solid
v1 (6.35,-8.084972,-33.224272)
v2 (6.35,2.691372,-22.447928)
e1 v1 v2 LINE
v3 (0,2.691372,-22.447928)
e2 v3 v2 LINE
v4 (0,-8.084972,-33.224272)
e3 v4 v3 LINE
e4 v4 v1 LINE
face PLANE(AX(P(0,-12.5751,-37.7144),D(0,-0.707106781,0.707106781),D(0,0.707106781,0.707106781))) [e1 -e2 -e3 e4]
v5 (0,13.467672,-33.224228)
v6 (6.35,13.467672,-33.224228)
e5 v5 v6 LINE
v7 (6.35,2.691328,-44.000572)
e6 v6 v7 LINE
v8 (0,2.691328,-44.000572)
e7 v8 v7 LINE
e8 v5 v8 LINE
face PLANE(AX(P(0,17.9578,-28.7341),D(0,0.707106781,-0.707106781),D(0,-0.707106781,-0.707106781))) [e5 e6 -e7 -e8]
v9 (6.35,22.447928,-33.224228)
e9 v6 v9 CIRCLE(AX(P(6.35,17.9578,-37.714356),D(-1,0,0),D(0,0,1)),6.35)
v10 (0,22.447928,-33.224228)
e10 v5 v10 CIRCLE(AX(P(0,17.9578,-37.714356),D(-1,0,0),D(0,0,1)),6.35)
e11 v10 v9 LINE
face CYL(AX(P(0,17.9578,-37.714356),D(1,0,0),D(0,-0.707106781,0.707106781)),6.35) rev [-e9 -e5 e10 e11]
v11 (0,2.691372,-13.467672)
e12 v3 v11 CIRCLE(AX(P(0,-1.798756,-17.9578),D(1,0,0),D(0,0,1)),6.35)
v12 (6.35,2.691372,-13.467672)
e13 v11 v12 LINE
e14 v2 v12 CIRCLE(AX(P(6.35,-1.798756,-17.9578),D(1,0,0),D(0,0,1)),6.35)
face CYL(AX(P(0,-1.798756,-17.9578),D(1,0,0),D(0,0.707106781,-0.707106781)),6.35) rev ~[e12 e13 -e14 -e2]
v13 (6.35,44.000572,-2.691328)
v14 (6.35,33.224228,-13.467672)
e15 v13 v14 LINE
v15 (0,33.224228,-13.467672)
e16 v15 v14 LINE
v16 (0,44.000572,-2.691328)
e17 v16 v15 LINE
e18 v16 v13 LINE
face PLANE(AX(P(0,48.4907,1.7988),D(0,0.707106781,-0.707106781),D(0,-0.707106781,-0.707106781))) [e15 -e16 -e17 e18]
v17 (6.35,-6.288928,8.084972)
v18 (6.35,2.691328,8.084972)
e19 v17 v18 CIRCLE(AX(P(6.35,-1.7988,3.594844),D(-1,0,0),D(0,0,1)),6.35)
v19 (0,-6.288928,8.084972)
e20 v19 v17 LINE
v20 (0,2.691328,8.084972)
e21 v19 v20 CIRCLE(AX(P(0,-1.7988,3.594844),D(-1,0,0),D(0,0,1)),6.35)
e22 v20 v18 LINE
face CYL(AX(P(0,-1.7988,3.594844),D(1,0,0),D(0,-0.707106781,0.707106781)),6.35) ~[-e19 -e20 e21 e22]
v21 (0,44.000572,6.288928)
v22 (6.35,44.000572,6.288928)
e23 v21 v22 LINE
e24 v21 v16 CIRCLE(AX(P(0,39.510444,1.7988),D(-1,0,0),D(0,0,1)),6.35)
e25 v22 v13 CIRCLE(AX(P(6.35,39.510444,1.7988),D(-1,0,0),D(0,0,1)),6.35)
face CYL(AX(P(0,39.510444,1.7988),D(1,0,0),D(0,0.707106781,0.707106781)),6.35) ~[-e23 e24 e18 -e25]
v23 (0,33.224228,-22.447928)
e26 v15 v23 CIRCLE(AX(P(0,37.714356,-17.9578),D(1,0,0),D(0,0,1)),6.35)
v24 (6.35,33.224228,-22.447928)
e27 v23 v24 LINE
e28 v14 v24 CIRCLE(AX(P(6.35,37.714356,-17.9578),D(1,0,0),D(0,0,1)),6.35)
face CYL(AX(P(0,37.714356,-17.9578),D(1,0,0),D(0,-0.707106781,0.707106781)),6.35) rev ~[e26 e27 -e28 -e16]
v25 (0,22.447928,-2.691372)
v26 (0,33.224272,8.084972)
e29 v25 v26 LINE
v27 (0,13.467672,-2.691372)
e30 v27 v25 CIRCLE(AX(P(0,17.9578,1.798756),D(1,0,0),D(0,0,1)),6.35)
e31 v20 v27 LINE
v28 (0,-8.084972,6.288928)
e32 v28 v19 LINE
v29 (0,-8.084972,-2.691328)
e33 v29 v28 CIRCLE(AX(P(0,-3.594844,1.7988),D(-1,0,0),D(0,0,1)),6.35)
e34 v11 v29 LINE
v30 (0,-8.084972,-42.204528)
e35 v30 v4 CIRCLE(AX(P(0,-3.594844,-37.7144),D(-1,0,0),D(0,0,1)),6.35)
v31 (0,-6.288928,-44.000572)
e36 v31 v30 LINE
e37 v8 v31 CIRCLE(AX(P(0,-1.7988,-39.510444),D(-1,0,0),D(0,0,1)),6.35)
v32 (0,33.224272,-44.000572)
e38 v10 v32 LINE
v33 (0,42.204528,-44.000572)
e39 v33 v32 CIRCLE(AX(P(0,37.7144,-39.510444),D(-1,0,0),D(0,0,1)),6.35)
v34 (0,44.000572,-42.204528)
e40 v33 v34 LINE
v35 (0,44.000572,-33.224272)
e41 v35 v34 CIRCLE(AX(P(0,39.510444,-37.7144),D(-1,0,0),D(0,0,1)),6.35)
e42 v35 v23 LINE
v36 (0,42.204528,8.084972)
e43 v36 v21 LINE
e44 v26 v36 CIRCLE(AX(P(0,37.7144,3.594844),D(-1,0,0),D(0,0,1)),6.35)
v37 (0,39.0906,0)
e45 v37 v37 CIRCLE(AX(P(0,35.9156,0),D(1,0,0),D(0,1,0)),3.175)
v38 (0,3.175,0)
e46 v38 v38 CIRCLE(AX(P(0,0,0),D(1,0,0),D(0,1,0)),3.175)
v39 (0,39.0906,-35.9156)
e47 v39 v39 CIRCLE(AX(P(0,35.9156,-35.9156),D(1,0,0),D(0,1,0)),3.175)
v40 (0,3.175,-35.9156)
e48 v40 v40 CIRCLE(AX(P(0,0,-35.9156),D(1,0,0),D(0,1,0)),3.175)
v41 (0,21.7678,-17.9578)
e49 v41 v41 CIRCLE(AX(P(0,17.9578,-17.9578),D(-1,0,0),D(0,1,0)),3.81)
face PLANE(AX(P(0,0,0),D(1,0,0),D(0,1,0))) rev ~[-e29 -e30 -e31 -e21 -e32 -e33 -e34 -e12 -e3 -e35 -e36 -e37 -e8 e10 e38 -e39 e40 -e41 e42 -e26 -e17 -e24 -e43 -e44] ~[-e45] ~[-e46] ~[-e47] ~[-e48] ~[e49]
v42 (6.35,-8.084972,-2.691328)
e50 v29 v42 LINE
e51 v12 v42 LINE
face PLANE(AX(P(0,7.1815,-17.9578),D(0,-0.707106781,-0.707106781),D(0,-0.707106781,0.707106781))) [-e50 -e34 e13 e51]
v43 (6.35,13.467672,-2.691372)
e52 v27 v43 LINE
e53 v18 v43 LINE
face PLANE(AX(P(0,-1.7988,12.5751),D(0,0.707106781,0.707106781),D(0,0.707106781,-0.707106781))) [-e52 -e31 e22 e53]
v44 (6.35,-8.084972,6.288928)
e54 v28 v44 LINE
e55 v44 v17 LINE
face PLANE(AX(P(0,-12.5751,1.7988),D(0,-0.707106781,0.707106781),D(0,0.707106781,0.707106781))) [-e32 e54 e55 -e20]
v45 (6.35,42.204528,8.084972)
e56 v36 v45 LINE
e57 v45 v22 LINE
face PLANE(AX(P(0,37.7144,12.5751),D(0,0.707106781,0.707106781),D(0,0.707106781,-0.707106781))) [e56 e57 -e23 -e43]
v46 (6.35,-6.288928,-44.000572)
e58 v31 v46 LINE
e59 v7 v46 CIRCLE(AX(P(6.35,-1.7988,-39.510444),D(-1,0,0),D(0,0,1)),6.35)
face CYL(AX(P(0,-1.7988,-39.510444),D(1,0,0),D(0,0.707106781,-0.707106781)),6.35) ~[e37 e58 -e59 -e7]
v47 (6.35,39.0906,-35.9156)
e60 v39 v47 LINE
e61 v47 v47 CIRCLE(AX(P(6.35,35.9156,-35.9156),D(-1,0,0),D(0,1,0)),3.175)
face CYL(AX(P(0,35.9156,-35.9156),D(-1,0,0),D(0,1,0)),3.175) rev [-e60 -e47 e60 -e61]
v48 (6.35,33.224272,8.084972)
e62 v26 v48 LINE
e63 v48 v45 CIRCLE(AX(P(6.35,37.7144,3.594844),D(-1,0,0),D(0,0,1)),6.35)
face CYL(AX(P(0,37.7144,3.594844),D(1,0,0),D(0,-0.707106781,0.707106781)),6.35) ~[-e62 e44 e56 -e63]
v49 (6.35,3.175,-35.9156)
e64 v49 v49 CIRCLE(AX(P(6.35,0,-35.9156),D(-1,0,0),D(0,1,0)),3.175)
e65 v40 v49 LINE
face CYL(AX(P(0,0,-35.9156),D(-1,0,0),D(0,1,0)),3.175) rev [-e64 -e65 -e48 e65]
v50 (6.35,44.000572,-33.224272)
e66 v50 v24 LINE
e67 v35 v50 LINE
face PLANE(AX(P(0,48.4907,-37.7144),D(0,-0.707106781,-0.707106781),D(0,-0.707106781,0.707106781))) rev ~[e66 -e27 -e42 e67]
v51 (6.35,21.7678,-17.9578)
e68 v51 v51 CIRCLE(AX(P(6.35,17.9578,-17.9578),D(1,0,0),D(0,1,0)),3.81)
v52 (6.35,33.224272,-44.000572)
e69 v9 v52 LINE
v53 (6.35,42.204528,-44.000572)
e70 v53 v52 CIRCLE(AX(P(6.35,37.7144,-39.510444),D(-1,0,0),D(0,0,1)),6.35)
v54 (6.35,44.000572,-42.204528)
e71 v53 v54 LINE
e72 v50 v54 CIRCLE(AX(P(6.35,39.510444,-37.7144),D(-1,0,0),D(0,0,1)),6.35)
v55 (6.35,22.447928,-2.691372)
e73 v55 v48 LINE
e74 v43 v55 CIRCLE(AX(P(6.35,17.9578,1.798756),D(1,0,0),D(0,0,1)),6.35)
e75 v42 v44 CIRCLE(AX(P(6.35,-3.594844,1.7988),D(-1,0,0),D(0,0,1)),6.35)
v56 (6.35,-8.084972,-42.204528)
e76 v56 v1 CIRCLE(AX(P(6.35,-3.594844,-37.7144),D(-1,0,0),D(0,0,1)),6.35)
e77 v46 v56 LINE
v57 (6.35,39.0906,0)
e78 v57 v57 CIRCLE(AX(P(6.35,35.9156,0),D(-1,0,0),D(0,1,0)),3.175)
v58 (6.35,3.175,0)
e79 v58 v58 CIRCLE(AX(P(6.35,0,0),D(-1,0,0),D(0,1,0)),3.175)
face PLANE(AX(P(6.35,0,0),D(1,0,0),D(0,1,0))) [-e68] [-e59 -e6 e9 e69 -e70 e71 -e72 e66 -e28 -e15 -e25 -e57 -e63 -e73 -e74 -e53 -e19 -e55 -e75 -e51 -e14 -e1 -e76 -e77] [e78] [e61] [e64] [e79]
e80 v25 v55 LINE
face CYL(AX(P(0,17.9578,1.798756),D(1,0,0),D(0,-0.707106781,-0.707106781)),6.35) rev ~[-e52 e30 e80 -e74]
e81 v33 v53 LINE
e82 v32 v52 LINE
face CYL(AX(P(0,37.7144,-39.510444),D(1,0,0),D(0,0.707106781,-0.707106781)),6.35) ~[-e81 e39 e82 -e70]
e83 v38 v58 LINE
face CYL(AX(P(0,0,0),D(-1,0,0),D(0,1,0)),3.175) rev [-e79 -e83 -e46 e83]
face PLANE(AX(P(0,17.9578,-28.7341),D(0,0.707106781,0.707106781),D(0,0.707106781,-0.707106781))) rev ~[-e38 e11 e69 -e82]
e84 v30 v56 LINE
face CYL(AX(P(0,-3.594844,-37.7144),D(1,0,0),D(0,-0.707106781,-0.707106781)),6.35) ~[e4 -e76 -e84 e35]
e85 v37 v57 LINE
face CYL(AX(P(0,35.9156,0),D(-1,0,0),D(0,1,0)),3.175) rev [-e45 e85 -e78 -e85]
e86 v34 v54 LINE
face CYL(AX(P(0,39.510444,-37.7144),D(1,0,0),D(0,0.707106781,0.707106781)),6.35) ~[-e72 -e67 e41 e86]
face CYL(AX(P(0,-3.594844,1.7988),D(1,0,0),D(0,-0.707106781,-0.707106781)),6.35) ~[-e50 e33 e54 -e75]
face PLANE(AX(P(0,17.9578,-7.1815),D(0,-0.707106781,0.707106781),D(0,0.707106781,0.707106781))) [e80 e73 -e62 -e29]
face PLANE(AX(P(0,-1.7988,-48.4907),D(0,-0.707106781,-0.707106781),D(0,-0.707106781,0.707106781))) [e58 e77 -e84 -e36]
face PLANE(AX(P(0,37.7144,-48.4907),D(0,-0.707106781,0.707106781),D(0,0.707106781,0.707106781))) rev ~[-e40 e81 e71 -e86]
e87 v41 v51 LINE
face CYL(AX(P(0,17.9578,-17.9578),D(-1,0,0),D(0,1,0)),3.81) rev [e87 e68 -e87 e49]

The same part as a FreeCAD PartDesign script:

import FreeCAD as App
import Part
import Sketcher

V = App.Vector
Q = App.Units.Quantity


def edges_at(feature, points):
    """Names of the edges that pass closest to the given points."""
    edges = feature.Shape.Edges
    near = lambda p: min(range(len(edges)), key=lambda i: edges[i].distToShape(Part.Vertex(*p))[0])
    return sorted({f"Edge{near(p) + 1}" for p in points})


def add_polygon(sketch, points):
    """Adds a closed chain of lines whose ends are joined by coincident constraints."""
    first, n = sketch.GeometryCount, len(points)
    for a, b in zip(points, points[1:] + points[:1]):
        sketch.addGeometry(Part.LineSegment(App.Vector(*a, 0), App.Vector(*b, 0)), False)
    for i in range(n):
        sketch.addConstraint(Sketcher.Constraint("Coincident", first + i, 2, first + (i + 1) % n, 1))

doc = App.newDocument("Part")
body = doc.addObject("PartDesign::Body", "Body")

# Sketch on YZ plane
sketch1 = body.newObject("Sketcher::SketchObject", "Sketch")
sketch1.AttachmentSupport = (doc.getObject("YZ_Plane"), [""])
sketch1.MapMode = "FlatFace"
add_polygon(sketch1, [(-1.8, -48.5), (18, -28.7), (37.7, -48.5), (48.5, -37.7), (28.7, -18), (48.5, 1.8), (37.7, 12.6), (18, -7.2), (-1.8, 12.6), (-12.6, 1.8), (7.2, -18), (-12.6, -37.7)])  # lines 0-11
sketch1.addGeometry(Part.Circle(V(18, -18, 0), V(0, 0, 1), 3.8), False)  # 12
sketch1.addGeometry(Part.Circle(V(0, -35.9, 0), V(0, 0, 1), 3.2), False)  # 13
sketch1.addGeometry(Part.Circle(V(35.9, 0, 0), V(0, 0, 1), 3.2), False)  # 14
sketch1.addGeometry(Part.Circle(V(35.9, -35.9, 0), V(0, 0, 1), 3.2), False)  # 15
sketch1.addGeometry(Part.Circle(V(0, 0, 0), V(0, 0, 1), 3.2), False)  # 16
sketch1.addConstraint([
    Sketcher.Constraint("Coincident", 16, 3, -1, 1),
    Sketcher.Constraint("Equal", 13, 14),
    Sketcher.Constraint("Equal", 14, 15),
    Sketcher.Constraint("Equal", 15, 16),
    Sketcher.Constraint("PointOnObject", 13, 3, -2),
    Sketcher.Constraint("PointOnObject", 14, 3, -1),
    Sketcher.Constraint("Perpendicular", 0, 1),
    Sketcher.Constraint("Perpendicular", 1, 2),
    Sketcher.Constraint("Perpendicular", 2, 3),
    Sketcher.Constraint("Perpendicular", 3, 4),
    Sketcher.Constraint("Perpendicular", 4, 5),
    Sketcher.Constraint("Perpendicular", 5, 6),
    Sketcher.Constraint("Perpendicular", 6, 7),
    Sketcher.Constraint("Perpendicular", 7, 8),
    Sketcher.Constraint("Perpendicular", 8, 9),
    Sketcher.Constraint("Perpendicular", 9, 10),
    Sketcher.Constraint("Perpendicular", 10, 11),
    Sketcher.Constraint("Horizontal", 13, 3, 15, 3),
    Sketcher.Constraint("Horizontal", 12, 3, 3, 2),
    Sketcher.Constraint("Horizontal", 5, 2, 7, 2),
    Sketcher.Constraint("Horizontal", 4, 2, 8, 2),
    Sketcher.Constraint("Horizontal", 3, 2, 9, 2),
    Sketcher.Constraint("Horizontal", 2, 2, 10, 2),
    Sketcher.Constraint("Horizontal", 1, 2, 11, 2),
    Sketcher.Constraint("Vertical", 14, 3, 15, 3),
    Sketcher.Constraint("Vertical", 12, 3, 0, 2),
    Sketcher.Constraint("Vertical", 2, 2, 4, 2),
    Sketcher.Constraint("Vertical", 1, 2, 5, 2),
    Sketcher.Constraint("Vertical", 0, 2, 6, 2),
    Sketcher.Constraint("Equal", 1, 3),
    Sketcher.Constraint("Diameter", 12, Q("0.3 in")),
    Sketcher.Constraint("Diameter", 13, Q("0.25 in")),
    Sketcher.Constraint("Distance", 2, Q("0.6 in")),
    Sketcher.Constraint("DistanceY", 13, 3, -1, 1, Q("1.414 in")),
    Sketcher.Constraint("DistanceX", -1, 1, 14, 3, Q("1.414 in")),
    Sketcher.Constraint("Distance", 0, Q("1.1 in")),
    Sketcher.Constraint("DistanceX", -1, 1, 12, 3, Q("0.707 in")),
    Sketcher.Constraint("DistanceY", 12, 3, -1, 1, Q("0.707 in")),
])
pad1 = body.newObject("PartDesign::Pad", "Pad")
pad1.Profile = sketch1
pad1.Length = Q("0.25 in")
doc.recompute()

fillet = body.newObject("PartDesign::Fillet", "Fillet")
fillet.Base = (pad1, edges_at(pad1, [
    (3.175, 28.734, -17.958),
    (3.175, 48.491, -37.714),
    (3.175, 37.714, -48.491),
    (3.175, -1.799, -48.491),
    (3.175, -1.799, 12.575),
    (3.175, 37.714, 12.575),
    (3.175, 48.491, 1.799),
    (3.175, 17.958, -28.734),
    (3.175, -12.575, -37.714),
    (3.175, -12.575, 1.799),
    (3.175, 7.181, -17.958),
    (3.175, 17.958, -7.181),
]))
fillet.Radius = Q("0.25 in")

doc.recompute()
